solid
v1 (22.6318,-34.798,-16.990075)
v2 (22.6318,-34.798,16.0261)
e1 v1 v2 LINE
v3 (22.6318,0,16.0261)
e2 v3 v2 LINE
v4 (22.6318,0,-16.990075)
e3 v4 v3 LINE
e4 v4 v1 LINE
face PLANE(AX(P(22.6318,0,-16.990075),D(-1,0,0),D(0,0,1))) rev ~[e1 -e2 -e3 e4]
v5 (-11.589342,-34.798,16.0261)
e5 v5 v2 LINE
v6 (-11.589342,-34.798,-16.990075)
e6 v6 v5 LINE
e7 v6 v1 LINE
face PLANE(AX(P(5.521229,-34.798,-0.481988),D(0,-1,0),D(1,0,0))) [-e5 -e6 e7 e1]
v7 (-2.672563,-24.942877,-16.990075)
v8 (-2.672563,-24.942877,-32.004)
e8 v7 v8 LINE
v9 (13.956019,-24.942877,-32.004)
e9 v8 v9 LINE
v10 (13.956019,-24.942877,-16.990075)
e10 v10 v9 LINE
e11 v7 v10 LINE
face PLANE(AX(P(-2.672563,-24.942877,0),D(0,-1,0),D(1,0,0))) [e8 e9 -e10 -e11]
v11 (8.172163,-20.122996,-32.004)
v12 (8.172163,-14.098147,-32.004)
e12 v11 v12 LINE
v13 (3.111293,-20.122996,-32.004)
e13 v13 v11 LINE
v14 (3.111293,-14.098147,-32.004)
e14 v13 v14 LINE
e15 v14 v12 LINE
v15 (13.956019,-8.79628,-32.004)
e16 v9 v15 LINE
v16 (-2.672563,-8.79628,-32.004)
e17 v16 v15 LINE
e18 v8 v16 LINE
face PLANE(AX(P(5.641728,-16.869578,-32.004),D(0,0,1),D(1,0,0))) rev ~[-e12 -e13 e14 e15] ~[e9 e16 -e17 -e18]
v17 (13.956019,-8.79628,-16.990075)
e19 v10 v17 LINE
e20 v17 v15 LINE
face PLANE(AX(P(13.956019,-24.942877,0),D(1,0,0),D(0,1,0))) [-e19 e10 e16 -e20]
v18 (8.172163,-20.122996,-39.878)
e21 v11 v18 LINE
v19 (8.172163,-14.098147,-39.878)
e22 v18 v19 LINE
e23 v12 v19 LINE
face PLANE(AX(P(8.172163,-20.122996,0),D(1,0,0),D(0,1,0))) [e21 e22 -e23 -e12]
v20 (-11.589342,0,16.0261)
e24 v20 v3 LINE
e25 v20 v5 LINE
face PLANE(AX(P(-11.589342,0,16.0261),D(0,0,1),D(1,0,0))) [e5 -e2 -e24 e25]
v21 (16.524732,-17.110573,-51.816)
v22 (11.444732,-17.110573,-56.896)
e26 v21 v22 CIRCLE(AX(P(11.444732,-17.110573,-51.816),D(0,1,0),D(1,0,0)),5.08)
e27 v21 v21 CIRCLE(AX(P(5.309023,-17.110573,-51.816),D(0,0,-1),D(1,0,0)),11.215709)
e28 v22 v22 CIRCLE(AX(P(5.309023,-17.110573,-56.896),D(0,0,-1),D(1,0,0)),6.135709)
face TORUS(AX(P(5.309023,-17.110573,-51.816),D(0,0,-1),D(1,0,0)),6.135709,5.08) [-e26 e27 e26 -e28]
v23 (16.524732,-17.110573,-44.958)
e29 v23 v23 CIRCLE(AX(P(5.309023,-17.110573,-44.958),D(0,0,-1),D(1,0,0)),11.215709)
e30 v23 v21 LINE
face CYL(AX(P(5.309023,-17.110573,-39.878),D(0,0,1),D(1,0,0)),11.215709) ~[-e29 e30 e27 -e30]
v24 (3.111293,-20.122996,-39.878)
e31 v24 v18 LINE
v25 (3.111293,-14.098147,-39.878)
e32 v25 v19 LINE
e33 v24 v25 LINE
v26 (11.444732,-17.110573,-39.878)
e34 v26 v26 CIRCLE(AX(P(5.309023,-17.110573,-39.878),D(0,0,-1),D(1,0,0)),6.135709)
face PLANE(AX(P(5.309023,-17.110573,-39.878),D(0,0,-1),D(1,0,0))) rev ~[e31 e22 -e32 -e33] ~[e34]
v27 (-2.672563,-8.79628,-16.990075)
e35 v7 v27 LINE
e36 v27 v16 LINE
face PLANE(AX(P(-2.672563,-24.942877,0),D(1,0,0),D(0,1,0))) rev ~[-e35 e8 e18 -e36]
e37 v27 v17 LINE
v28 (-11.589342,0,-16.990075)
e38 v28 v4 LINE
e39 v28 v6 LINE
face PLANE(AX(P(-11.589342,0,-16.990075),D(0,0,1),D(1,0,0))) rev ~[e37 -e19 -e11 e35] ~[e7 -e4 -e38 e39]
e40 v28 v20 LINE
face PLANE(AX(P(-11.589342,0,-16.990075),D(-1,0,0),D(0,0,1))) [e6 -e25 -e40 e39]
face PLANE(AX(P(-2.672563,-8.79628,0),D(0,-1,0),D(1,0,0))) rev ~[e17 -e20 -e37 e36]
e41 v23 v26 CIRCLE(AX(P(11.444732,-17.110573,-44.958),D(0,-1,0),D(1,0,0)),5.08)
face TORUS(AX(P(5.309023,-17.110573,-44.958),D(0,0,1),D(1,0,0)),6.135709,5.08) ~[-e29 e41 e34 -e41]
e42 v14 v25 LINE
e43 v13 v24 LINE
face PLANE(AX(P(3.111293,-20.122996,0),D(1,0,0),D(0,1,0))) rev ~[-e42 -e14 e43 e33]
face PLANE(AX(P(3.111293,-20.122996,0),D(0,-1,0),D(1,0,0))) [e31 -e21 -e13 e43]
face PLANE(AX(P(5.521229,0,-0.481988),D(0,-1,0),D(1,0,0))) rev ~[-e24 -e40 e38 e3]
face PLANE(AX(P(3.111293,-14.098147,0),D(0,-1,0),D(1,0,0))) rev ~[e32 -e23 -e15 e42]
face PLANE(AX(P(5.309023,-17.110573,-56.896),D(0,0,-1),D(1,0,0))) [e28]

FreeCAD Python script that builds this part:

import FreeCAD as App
import Part
import Sketcher
from FreeCAD import Vector
Q = App.Units.Quantity


def edges_at(feature, points):
    """Names of the edges that pass closest to the given points."""
    edges = feature.Shape.Edges
    near = lambda p: min(range(len(edges)), key=lambda i: edges[i].distToShape(Part.Vertex(*p))[0])
    return sorted({f"Edge{near(p) + 1}" for p in points})

doc = App.newDocument("Part")
body = doc.addObject("PartDesign::Body", "Body")

sketch1 = body.newObject("Sketcher::SketchObject", "Sketch")
sketch1.AttachmentSupport = (doc.getObject("XZ_Plane"), [""])
sketch1.MapMode = "FlatFace"
sketch1.addGeometry(Part.LineSegment(Vector(-11.589342, 16.0261, 0), Vector(-11.589342, -16.990075, 0)), False)
sketch1.addGeometry(Part.LineSegment(Vector(-11.589342, -16.990075, 0), Vector(22.6318, -16.990075, 0)), False)
sketch1.addGeometry(Part.LineSegment(Vector(22.6318, -16.990075, 0), Vector(22.6318, 16.0261, 0)), False)
sketch1.addGeometry(Part.LineSegment(Vector(22.6318, 16.0261, 0), Vector(-11.589342, 16.0261, 0)), False)
sketch1.addConstraint(Sketcher.Constraint("Coincident", 0, 2, 1, 1))
sketch1.addConstraint(Sketcher.Constraint("Coincident", 1, 2, 2, 1))
sketch1.addConstraint(Sketcher.Constraint("Coincident", 2, 2, 3, 1))
sketch1.addConstraint(Sketcher.Constraint("Coincident", 3, 2, 0, 1))
sketch1.addConstraint(Sketcher.Constraint("Vertical", 0))
sketch1.addConstraint(Sketcher.Constraint("Horizontal", 1))
sketch1.addConstraint(Sketcher.Constraint("Vertical", 2))
sketch1.addConstraint(Sketcher.Constraint("Horizontal", 3))
sketch1.addConstraint(Sketcher.Constraint("DistanceX", -1, 1, 1, 2, Q("22.6318 mm")))
sketch1.addConstraint(Sketcher.Constraint("DistanceY", -1, 1, 2, 2, Q("16.0261 mm")))
sketch1.addConstraint(Sketcher.Constraint("DistanceX", 1, 1, 1, 2, Q("34.221142 mm")))
sketch1.addConstraint(Sketcher.Constraint("DistanceY", 0, 2, 0, 1, Q("33.016175 mm")))
pad1 = body.newObject("PartDesign::Pad", "Pad")
pad1.Profile = sketch1
pad1.Length = Q("1.37 in")

sketch2 = body.newObject("Sketcher::SketchObject", "Sketch001")
sketch2.AttachmentSupport = (doc.getObject("XY_Plane"), [""])
sketch2.MapMode = "FlatFace"
sketch2.addGeometry(Part.LineSegment(Vector(-2.672563, -8.79628, 0), Vector(-2.672563, -24.942877, 0)), False)
sketch2.addGeometry(Part.LineSegment(Vector(-2.672563, -24.942877, 0), Vector(13.956019, -24.942877, 0)), False)
sketch2.addGeometry(Part.LineSegment(Vector(13.956019, -24.942877, 0), Vector(13.956019, -8.79628, 0)), False)
sketch2.addGeometry(Part.LineSegment(Vector(13.956019, -8.79628, 0), Vector(-2.672563, -8.79628, 0)), False)
sketch2.addConstraint(Sketcher.Constraint("Coincident", 0, 2, 1, 1))
sketch2.addConstraint(Sketcher.Constraint("Coincident", 1, 2, 2, 1))
sketch2.addConstraint(Sketcher.Constraint("Coincident", 2, 2, 3, 1))
sketch2.addConstraint(Sketcher.Constraint("Coincident", 3, 2, 0, 1))
sketch2.addConstraint(Sketcher.Constraint("Vertical", 0))
sketch2.addConstraint(Sketcher.Constraint("Horizontal", 1))
sketch2.addConstraint(Sketcher.Constraint("Vertical", 2))
sketch2.addConstraint(Sketcher.Constraint("Horizontal", 3))
sketch2.addConstraint(Sketcher.Constraint("DistanceX", 1, 1, 1, 2, Q("16.628581 mm")))
sketch2.addConstraint(Sketcher.Constraint("DistanceY", 0, 2, 0, 1, Q("16.146597 mm")))
sketch2.addConstraint(Sketcher.Constraint("DistanceX", -1, 1, 1, 2, Q("13.956019 mm")))
sketch2.addConstraint(Sketcher.Constraint("DistanceY", 2, 2, -1, 1, Q("8.79628 mm")))
pad2 = body.newObject("PartDesign::Pad", "Pad001")
pad2.Profile = sketch2
pad2.Length = Q("1.26 in")
pad2.Reversed = True

sketch3 = body.newObject("Sketcher::SketchObject", "Sketch002")
sketch3.AttachmentSupport = (doc.getObject("XY_Plane"), [""])
sketch3.MapMode = "FlatFace"
sketch3.addGeometry(Part.LineSegment(Vector(3.111293, -14.098147, 0), Vector(3.111293, -20.122996, 0)), False)
sketch3.addGeometry(Part.LineSegment(Vector(3.111293, -20.122996, 0), Vector(8.172163, -20.122996, 0)), False)
sketch3.addGeometry(Part.LineSegment(Vector(8.172163, -20.122996, 0), Vector(8.172163, -14.098147, 0)), False)
sketch3.addGeometry(Part.LineSegment(Vector(8.172163, -14.098147, 0), Vector(3.111293, -14.098147, 0)), False)
sketch3.addConstraint(Sketcher.Constraint("Coincident", 0, 2, 1, 1))
sketch3.addConstraint(Sketcher.Constraint("Coincident", 1, 2, 2, 1))
sketch3.addConstraint(Sketcher.Constraint("Coincident", 2, 2, 3, 1))
sketch3.addConstraint(Sketcher.Constraint("Coincident", 3, 2, 0, 1))
sketch3.addConstraint(Sketcher.Constraint("Vertical", 0))
sketch3.addConstraint(Sketcher.Constraint("Horizontal", 1))
sketch3.addConstraint(Sketcher.Constraint("Vertical", 2))
sketch3.addConstraint(Sketcher.Constraint("Horizontal", 3))
sketch3.addConstraint(Sketcher.Constraint("DistanceX", 1, 1, 1, 2, Q("5.060869 mm")))
sketch3.addConstraint(Sketcher.Constraint("DistanceY", 0, 2, 0, 1, Q("6.024849 mm")))
sketch3.addConstraint(Sketcher.Constraint("DistanceX", -1, 1, 0, 2, Q("3.111293 mm")))
sketch3.addConstraint(Sketcher.Constraint("DistanceY", 0, 2, -1, 1, Q("20.122996 mm")))
pad3 = body.newObject("PartDesign::Pad", "Pad002")
pad3.Profile = sketch3
pad3.Length = Q("1.57 in")
pad3.Reversed = True

sketch4 = body.newObject("Sketcher::SketchObject", "Sketch003")
sketch4.AttachmentSupport = (doc.getObject("XY_Plane"), [""])
sketch4.MapMode = "FlatFace"
sketch4.AttachmentOffset = App.Placement(Vector(0, 0, -1.57 * 25.4), App.Rotation())
sketch4.addGeometry(Part.Circle(Vector(5.309023, -17.110573, 0), Vector(0, 0, 1), 11.215709), False)
sketch4.addConstraint(Sketcher.Constraint("Diameter", 0, Q("22.431418 mm")))
sketch4.addConstraint(Sketcher.Constraint("DistanceX", -1, 1, 0, 3, Q("5.309023 mm")))
sketch4.addConstraint(Sketcher.Constraint("DistanceY", 0, 3, -1, 1, Q("17.110573 mm")))
pad4 = body.newObject("PartDesign::Pad", "Pad003")
pad4.Profile = sketch4
pad4.Length = Q("0.67 in")
pad4.Reversed = True
doc.recompute()

fillet = body.newObject("PartDesign::Fillet", "Fillet")
fillet.Base = (pad4, edges_at(pad4, [(-5.907, -17.111, -56.896), (-5.907, -17.111, -39.878)]))
fillet.Radius = Q("0.2 in")

doc.recompute()
